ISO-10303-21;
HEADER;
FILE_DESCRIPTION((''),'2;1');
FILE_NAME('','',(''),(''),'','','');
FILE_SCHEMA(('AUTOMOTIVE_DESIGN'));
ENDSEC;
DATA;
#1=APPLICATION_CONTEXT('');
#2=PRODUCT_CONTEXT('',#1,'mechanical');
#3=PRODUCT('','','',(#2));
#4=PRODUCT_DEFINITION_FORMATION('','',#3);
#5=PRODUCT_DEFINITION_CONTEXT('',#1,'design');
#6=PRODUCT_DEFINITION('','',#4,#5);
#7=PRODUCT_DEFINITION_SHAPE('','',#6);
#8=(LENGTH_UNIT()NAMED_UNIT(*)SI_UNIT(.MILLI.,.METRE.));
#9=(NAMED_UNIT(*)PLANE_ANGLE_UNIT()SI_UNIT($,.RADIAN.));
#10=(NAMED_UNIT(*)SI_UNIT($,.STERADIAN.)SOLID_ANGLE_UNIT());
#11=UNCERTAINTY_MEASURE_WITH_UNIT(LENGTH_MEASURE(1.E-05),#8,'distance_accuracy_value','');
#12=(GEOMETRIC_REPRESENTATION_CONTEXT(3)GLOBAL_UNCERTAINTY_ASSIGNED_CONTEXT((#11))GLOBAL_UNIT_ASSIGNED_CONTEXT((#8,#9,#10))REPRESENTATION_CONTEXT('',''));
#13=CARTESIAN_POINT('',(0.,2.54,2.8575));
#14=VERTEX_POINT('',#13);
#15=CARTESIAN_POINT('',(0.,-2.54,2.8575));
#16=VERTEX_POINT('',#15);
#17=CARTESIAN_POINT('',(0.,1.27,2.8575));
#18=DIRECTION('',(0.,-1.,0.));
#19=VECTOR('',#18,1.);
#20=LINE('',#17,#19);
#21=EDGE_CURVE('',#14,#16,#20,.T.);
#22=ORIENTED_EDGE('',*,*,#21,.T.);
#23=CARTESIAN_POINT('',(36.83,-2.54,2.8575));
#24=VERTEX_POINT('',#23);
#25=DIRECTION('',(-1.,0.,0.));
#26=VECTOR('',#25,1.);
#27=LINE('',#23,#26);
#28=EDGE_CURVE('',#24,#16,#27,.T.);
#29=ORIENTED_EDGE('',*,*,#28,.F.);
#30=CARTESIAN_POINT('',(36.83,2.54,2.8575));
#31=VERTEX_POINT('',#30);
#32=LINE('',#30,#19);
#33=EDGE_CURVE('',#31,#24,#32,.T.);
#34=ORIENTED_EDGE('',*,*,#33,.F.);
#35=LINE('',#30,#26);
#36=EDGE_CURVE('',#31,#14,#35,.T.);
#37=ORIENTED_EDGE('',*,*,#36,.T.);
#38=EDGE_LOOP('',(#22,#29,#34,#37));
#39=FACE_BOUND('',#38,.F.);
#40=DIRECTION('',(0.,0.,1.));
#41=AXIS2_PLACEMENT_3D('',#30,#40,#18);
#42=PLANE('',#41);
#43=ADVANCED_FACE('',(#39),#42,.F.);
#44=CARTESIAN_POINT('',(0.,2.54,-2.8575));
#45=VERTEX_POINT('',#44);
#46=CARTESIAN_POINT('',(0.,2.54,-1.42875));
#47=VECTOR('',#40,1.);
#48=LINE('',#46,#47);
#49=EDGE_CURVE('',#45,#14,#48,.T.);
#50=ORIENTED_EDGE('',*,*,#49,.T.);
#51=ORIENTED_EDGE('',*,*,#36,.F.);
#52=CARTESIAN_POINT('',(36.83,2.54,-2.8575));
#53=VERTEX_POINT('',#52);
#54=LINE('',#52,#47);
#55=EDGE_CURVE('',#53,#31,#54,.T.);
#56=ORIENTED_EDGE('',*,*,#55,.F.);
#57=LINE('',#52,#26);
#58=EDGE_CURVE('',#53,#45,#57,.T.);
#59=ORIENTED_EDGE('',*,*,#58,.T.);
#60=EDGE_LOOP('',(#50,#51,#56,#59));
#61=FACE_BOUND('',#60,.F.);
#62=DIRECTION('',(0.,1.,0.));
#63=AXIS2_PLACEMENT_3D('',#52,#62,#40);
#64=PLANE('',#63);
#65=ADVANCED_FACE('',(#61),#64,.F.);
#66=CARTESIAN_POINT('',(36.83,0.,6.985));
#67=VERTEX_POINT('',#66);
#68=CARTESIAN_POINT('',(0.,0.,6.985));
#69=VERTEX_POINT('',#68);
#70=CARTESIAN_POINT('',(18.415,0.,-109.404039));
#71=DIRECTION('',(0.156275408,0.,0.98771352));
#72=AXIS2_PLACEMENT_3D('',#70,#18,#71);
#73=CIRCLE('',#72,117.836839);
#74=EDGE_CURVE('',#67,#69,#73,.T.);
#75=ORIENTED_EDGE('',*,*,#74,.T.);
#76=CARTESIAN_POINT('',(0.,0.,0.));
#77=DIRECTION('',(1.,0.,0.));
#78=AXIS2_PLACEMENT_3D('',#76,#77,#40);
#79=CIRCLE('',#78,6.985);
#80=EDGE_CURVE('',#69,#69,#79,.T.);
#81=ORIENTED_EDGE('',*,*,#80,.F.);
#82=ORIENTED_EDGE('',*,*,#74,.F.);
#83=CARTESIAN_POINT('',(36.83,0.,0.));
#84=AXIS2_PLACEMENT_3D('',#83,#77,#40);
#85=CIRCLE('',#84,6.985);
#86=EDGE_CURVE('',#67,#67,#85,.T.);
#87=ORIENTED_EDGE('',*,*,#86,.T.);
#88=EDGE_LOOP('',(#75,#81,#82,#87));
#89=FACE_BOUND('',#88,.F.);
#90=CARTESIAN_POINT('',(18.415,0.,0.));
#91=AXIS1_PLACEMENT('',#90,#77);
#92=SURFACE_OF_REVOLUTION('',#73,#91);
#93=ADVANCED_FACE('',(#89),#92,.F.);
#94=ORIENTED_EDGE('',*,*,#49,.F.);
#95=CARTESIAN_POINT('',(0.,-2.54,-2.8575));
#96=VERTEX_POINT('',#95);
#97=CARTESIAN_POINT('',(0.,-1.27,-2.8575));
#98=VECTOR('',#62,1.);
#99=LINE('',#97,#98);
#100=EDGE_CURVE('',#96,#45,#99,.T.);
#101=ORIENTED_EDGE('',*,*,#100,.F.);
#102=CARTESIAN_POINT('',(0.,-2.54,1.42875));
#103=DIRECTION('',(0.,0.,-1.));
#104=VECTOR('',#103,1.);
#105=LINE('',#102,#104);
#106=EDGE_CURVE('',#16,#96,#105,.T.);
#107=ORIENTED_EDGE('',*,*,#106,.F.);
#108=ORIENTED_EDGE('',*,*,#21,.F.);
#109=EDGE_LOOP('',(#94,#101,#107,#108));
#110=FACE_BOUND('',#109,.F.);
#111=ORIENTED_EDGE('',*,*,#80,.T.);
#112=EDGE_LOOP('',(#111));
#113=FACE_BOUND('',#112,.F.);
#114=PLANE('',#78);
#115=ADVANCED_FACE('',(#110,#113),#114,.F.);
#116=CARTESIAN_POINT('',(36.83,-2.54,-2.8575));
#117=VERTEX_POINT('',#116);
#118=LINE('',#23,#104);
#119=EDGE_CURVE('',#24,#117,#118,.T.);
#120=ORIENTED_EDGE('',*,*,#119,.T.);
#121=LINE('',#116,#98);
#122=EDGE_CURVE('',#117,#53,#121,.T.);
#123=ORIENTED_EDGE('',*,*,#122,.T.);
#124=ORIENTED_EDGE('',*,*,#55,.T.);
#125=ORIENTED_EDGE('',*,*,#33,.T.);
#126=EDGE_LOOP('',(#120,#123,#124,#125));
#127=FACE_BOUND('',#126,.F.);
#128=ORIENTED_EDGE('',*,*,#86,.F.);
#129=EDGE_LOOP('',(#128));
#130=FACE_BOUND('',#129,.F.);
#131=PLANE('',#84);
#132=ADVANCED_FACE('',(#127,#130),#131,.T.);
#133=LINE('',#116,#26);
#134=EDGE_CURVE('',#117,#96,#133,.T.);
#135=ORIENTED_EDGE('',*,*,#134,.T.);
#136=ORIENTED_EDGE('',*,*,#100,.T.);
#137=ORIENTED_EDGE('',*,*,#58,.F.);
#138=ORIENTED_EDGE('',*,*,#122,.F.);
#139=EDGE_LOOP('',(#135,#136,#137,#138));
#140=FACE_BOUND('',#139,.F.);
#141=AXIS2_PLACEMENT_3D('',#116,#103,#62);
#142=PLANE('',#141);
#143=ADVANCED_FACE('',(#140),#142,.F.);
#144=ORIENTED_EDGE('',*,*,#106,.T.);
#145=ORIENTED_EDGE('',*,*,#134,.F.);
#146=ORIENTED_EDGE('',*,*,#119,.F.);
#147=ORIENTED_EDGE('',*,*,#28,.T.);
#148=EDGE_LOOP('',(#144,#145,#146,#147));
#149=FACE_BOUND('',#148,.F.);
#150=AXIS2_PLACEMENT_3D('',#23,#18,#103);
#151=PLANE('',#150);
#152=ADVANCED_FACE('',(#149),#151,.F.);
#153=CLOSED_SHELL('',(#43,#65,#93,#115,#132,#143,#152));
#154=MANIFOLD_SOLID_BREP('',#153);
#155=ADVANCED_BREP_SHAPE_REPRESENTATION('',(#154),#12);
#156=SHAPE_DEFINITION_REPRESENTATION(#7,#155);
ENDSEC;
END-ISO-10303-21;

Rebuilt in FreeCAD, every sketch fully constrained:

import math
import FreeCAD as App
import Part
import Sketcher
from FreeCAD import Vector
Q = App.Units.Quantity


def add_polygon(sketch, points):
    """Adds a closed chain of lines whose ends are joined by coincident constraints."""
    first, n = sketch.GeometryCount, len(points)
    for a, b in zip(points, points[1:] + points[:1]):
        sketch.addGeometry(Part.LineSegment(App.Vector(*a, 0), App.Vector(*b, 0)), False)
    for i in range(n):
        sketch.addConstraint(Sketcher.Constraint("Coincident", first + i, 2, first + (i + 1) % n, 1))

doc = App.newDocument("Part")
body = doc.addObject("PartDesign::Body", "Body")

# Sketch on XZ plane
sketch1 = body.newObject("Sketcher::SketchObject", "Sketch")
sketch1.AttachmentSupport = (doc.getObject("XZ_Plane"), [""])
sketch1.MapMode = "FlatFace"
sketch1.addGeometry([
    Part.LineSegment(Vector(0, 7, 0), Vector(0, 0, 0)),
    Part.LineSegment(Vector(0, 0, 0), Vector(37, 0, 0)),
    Part.LineSegment(Vector(37, 0, 0), Vector(37, 7, 0)),
    Part.ArcOfCircle(Part.Circle(Vector(18, -109, 0), Vector(0, 0, 1), 118), math.radians(81.01), math.radians(98.99)),
], False)
sketch1.addConstraint([
    Sketcher.Constraint("Coincident", 0, 2, 1, 1),
    Sketcher.Constraint("Coincident", 1, 2, 2, 1),
    Sketcher.Constraint("Coincident", 2, 2, 3, 1),
    Sketcher.Constraint("Coincident", 3, 2, 0, 1),
    Sketcher.Constraint("Vertical", 0),
    Sketcher.Constraint("Horizontal", 1),
    Sketcher.Constraint("Vertical", 2),
    Sketcher.Constraint("Coincident", 0, 2, -1, 1),
    Sketcher.Constraint("Horizontal", 2, 2, 3, 2),
    Sketcher.Constraint("DistanceX", 1, 1, 1, 2, Q("1.45 in")),
    Sketcher.Constraint("DistanceY", 0, 2, 0, 1, Q("0.275 in")),
    Sketcher.Constraint("Radius", 3, Q("117.836839 mm")),
])
revolution = body.newObject("PartDesign::Revolution", "Revolution")
revolution.Profile = sketch1
revolution.ReferenceAxis = (sketch1, ["H_Axis"])
revolution.Angle = 360

# Sketch on YZ plane
sketch2 = body.newObject("Sketcher::SketchObject", "Sketch001")
sketch2.AttachmentSupport = (doc.getObject("YZ_Plane"), [""])
sketch2.MapMode = "FlatFace"
sketch2.AttachmentOffset = App.Placement(Vector(0, 0, 1.45 * 25.4), App.Rotation())
add_polygon(sketch2, [(3, -3), (3, 3), (-3, 3), (-3, -3)])  # lines 0-3
sketch2.addConstraint([
    Sketcher.Constraint("Vertical", 0),
    Sketcher.Constraint("Horizontal", 1),
    Sketcher.Constraint("Vertical", 2),
    Sketcher.Constraint("Horizontal", 3),
    Sketcher.Constraint("Symmetric", 0, 2, 2, 2, -1, 1),
    Sketcher.Constraint("DistanceX", 1, 2, 1, 1, Q("0.2 in")),
    Sketcher.Constraint("DistanceY", 0, 1, 0, 2, Q("0.225 in")),
])
pocket1 = body.newObject("PartDesign::Pocket", "Pocket")
pocket1.Profile = sketch2
pocket1.Length = Q("1.81 in")

doc.recompute()
